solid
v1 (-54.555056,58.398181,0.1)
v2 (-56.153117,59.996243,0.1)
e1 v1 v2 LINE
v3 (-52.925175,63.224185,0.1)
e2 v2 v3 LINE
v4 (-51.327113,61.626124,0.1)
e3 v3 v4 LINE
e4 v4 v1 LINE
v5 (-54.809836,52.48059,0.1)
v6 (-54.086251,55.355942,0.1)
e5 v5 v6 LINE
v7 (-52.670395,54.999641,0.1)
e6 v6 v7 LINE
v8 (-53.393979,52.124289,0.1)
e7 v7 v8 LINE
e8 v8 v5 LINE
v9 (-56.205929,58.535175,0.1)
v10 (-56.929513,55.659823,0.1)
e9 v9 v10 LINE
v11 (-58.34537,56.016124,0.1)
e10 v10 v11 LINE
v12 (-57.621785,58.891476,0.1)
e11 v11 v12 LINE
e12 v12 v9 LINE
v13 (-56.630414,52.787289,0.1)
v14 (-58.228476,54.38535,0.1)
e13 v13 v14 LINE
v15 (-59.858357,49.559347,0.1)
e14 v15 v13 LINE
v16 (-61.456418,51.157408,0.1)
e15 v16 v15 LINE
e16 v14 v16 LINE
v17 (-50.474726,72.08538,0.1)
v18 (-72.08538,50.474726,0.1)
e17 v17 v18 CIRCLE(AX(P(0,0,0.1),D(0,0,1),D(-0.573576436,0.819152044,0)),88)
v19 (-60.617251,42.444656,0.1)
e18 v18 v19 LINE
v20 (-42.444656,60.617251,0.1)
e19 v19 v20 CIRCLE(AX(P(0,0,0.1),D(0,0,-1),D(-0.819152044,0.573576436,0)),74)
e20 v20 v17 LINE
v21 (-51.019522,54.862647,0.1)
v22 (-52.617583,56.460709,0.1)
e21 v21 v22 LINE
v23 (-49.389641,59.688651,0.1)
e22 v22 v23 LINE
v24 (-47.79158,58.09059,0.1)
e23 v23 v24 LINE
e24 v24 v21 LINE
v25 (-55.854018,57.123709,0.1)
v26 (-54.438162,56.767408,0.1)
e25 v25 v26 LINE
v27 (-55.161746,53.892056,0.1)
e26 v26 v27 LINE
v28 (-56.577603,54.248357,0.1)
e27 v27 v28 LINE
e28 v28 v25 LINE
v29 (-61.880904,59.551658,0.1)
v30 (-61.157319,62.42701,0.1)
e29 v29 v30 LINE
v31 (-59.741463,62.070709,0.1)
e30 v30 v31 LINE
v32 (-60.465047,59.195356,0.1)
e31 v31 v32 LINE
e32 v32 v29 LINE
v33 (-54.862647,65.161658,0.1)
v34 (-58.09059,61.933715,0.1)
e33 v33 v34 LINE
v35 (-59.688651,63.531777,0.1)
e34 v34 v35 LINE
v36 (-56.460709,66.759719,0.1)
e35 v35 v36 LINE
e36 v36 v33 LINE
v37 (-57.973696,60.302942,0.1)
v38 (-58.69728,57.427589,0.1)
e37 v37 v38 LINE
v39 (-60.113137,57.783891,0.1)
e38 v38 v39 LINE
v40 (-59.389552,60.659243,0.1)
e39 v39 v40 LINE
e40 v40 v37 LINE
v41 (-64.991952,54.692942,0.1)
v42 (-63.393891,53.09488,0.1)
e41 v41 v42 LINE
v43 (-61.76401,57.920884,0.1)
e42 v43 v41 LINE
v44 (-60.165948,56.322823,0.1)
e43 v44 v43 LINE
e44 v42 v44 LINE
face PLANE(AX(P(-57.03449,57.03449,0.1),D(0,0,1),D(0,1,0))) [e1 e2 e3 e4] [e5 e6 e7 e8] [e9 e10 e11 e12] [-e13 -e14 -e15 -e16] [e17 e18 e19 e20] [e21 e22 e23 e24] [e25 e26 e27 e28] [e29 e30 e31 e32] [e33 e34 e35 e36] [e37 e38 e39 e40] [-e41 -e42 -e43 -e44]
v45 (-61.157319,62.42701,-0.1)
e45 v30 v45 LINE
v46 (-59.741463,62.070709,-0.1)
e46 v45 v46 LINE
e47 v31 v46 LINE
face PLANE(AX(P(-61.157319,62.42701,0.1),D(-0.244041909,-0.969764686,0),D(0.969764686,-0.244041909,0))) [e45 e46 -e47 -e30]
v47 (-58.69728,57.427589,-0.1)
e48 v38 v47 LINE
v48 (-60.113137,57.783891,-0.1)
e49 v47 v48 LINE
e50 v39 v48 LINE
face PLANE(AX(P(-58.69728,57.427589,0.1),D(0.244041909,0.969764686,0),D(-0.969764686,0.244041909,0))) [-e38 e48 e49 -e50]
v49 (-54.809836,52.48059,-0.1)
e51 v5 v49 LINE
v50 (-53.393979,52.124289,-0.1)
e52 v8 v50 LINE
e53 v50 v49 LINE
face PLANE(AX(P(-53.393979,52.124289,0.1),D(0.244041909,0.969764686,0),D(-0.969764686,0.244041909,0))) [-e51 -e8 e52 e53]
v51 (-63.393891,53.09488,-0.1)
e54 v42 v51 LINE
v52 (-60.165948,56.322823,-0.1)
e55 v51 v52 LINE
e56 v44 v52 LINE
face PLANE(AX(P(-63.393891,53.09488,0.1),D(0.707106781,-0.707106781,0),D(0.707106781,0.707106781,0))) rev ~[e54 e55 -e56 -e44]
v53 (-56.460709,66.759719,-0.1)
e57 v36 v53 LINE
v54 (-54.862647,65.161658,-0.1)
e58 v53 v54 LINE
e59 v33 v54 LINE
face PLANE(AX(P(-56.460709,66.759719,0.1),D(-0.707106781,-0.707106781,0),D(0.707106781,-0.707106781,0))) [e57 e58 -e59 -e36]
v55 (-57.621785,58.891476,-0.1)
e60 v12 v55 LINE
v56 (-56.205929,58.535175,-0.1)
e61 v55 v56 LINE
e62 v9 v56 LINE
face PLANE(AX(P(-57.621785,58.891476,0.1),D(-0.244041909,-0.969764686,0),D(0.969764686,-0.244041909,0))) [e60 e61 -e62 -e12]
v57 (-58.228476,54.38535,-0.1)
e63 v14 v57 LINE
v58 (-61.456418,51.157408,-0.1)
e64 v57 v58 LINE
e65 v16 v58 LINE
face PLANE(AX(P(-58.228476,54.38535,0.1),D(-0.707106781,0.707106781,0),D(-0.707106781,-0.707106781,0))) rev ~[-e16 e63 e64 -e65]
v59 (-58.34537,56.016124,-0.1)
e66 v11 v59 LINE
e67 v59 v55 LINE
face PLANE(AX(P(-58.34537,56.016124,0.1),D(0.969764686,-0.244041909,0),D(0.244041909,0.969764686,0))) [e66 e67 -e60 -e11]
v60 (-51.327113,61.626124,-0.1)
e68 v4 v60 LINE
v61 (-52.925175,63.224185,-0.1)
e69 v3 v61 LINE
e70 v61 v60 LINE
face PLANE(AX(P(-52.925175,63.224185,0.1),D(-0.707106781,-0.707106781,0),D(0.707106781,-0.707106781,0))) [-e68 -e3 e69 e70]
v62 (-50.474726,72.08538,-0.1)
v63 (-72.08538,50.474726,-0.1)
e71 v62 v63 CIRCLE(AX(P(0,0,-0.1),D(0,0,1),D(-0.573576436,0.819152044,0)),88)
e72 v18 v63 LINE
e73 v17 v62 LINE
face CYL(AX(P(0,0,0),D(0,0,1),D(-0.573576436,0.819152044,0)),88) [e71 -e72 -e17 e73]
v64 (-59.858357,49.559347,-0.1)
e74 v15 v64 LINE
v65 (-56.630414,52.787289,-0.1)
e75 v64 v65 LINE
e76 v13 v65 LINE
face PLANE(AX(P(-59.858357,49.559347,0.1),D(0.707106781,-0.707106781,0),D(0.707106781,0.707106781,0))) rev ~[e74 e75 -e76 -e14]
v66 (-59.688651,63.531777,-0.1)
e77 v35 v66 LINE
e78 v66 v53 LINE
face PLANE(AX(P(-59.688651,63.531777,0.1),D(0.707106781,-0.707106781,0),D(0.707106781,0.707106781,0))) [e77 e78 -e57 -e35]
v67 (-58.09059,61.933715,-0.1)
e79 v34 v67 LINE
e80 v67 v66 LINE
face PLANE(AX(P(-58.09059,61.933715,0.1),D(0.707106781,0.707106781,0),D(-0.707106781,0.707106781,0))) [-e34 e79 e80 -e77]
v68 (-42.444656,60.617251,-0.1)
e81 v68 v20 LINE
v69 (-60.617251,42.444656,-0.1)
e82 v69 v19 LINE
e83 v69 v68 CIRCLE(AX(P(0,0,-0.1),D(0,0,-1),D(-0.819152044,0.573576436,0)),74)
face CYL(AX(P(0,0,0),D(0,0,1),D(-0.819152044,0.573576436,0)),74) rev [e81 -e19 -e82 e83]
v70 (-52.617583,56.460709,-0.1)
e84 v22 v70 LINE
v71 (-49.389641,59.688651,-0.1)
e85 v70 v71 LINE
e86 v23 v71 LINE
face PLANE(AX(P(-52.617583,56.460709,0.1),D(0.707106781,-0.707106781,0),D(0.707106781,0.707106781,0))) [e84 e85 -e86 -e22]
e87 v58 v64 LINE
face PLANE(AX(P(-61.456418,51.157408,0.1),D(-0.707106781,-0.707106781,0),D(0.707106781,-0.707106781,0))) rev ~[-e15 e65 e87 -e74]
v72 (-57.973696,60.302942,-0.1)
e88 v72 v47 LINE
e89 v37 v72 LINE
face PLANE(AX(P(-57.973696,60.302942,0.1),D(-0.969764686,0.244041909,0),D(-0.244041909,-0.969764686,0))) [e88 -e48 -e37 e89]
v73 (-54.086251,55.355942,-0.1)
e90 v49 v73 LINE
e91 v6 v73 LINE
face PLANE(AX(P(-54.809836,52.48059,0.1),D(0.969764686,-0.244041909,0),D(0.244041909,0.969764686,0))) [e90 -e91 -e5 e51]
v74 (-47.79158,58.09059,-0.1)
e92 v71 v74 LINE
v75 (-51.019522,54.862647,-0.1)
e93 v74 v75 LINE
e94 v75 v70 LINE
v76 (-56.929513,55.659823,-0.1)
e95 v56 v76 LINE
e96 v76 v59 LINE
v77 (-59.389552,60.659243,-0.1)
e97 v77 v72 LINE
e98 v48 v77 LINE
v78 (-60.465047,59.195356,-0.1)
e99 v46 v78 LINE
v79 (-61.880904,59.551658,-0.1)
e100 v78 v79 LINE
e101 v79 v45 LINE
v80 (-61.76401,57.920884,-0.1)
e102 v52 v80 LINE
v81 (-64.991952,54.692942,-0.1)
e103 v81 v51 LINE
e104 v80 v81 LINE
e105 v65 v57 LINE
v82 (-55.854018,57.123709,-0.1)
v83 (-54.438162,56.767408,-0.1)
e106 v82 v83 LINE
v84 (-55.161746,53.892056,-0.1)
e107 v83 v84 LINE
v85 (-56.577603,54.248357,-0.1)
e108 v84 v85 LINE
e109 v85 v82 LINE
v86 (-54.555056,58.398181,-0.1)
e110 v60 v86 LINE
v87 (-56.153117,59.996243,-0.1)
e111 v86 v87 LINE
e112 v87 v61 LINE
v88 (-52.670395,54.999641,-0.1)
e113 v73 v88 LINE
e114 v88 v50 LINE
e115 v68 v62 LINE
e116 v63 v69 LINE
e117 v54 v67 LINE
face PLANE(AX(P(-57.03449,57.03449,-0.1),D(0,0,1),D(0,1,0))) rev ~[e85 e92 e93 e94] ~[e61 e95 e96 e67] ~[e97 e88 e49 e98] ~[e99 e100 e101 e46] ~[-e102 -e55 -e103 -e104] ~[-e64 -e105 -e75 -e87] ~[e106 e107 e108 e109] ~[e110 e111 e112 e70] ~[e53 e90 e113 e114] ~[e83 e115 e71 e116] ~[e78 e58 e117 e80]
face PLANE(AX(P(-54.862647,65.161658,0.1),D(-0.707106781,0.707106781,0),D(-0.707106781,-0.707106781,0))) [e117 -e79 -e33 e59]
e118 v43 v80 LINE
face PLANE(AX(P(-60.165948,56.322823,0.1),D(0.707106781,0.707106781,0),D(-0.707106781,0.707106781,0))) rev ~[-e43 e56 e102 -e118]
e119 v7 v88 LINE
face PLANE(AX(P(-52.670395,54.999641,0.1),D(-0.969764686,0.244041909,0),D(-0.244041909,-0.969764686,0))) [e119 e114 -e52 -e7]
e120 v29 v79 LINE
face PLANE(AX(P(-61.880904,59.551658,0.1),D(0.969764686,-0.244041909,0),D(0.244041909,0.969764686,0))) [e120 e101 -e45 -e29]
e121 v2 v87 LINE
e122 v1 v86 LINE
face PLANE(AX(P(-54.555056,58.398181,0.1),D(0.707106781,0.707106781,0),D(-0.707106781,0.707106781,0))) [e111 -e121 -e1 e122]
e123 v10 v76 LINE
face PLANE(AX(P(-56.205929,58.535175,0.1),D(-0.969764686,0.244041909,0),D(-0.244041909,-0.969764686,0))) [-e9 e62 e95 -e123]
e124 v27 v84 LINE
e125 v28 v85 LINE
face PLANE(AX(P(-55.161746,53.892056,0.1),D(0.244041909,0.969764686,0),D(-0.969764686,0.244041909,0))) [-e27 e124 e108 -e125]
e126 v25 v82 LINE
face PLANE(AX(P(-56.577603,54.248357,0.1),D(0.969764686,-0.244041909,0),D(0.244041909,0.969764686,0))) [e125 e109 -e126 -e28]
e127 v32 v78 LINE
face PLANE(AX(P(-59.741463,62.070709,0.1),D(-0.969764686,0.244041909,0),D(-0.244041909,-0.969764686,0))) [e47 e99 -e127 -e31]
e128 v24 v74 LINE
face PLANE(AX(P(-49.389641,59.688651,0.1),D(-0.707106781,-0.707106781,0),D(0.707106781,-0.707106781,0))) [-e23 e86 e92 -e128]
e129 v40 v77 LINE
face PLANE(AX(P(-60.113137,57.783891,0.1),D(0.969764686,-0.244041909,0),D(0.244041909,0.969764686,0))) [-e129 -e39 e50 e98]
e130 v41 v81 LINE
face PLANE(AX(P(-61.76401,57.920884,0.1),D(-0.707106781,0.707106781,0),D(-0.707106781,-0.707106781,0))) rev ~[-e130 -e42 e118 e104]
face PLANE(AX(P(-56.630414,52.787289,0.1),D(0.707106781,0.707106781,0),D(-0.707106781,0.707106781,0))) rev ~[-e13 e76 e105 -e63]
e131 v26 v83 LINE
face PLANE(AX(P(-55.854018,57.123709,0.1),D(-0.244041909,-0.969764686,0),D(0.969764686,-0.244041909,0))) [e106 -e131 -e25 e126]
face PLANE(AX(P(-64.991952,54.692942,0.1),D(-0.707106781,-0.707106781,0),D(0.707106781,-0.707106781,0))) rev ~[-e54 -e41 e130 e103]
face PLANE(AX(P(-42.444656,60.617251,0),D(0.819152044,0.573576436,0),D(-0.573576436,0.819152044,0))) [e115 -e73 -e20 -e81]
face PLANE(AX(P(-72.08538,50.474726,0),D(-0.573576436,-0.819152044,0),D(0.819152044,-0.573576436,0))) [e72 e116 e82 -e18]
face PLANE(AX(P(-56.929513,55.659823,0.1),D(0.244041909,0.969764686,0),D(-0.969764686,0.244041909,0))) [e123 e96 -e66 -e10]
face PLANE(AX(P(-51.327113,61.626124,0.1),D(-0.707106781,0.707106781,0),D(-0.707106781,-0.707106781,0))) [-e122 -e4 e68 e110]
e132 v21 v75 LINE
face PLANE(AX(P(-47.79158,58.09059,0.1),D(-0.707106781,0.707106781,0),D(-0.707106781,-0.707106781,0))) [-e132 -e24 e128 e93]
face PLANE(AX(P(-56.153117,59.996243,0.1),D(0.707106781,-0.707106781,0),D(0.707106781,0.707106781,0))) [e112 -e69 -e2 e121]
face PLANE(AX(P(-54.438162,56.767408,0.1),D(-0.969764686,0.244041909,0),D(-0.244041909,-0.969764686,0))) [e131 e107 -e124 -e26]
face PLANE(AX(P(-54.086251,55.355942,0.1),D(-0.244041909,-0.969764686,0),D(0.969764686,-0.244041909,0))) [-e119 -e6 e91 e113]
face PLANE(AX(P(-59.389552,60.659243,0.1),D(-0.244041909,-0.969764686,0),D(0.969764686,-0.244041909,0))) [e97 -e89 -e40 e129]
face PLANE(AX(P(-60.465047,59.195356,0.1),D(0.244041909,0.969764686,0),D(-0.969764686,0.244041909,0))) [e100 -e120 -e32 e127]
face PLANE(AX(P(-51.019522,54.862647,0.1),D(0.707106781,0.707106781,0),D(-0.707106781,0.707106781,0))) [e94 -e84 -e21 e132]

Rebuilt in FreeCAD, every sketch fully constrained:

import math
import FreeCAD as App
import Part
import Sketcher
from FreeCAD import Vector
Q = App.Units.Quantity

doc = App.newDocument("Part")
body = doc.addObject("PartDesign::Body", "Body")

# Sketch on XY plane
sketch1 = doc.addObject("Sketcher::SketchObject", "Sketch")
body.addObject(sketch1)
sketch1.AttachmentSupport = (doc.XY_Plane, [""])
sketch1.MapMode = "FlatFace"
sketch1.addGeometry([
    Part.LineSegment(Vector(-72.08538, 50.474726, 0), Vector(-60.617251, 42.444656, 0)),
    Part.ArcOfCircle(Part.Circle(Vector(0, 0, 0), Vector(0, 0, 1), 74), math.radians(125), math.radians(145)),
    Part.LineSegment(Vector(-42.444656, 60.617251, 0), Vector(-50.474726, 72.08538, 0)),
    Part.ArcOfCircle(Part.Circle(Vector(0, 0, 0), Vector(0, 0, 1), 88), math.radians(125), math.radians(145)),
], False)
sketch1.addConstraint([
    Sketcher.Constraint("Coincident", 0, 2, 1, 2),
    Sketcher.Constraint("Coincident", 1, 1, 2, 1),
    Sketcher.Constraint("Coincident", 2, 2, 3, 1),
    Sketcher.Constraint("Coincident", 3, 2, 0, 1),
    Sketcher.Constraint("Coincident", 1, 3, -1, 1),
    Sketcher.Constraint("Coincident", 3, 3, -1, 1),
    Sketcher.Constraint("Radius", 1, Q("74 mm")),
    Sketcher.Constraint("Radius", 3, Q("88 mm")),
    Sketcher.Constraint("Angle", 0, Q("-35 deg")),
    Sketcher.Constraint("Angle", 2, Q("125 deg")),
    Sketcher.Constraint("DistanceX", 0, 2, -1, 1, Q("60.617251 mm")),
    Sketcher.Constraint("DistanceY", -1, 1, 1, 1, Q("60.617251 mm")),
])
pad1 = doc.addObject("PartDesign::Pad", "Pad")
body.addObject(pad1)
pad1.Profile = sketch1
pad1.Length = 0.2
pad1.Midplane = True

# Sketch on XY plane
sketch2 = doc.addObject("Sketcher::SketchObject", "Sketch001")
body.addObject(sketch2)
sketch2.AttachmentSupport = (doc.XY_Plane, [""])
sketch2.MapMode = "FlatFace"
sketch2.AttachmentOffset = App.Placement(Vector(0, 0, 0.1), App.Rotation())
sketch2.addGeometry([
    Part.LineSegment(Vector(-54.086251, 55.355942, 0), Vector(-54.809836, 52.48059, 0)),  # 0
    Part.LineSegment(Vector(-54.809836, 52.48059, 0), Vector(-53.393979, 52.124289, 0)),  # 1
    Part.LineSegment(Vector(-53.393979, 52.124289, 0), Vector(-52.670395, 54.999641, 0)),  # 2
    Part.LineSegment(Vector(-52.670395, 54.999641, 0), Vector(-54.086251, 55.355942, 0)),  # 3
    Part.LineSegment(Vector(-55.854018, 57.123709, 0), Vector(-56.577603, 54.248357, 0)),  # 4
    Part.LineSegment(Vector(-56.577603, 54.248357, 0), Vector(-55.161746, 53.892056, 0)),  # 5
    Part.LineSegment(Vector(-55.161746, 53.892056, 0), Vector(-54.438162, 56.767408, 0)),  # 6
    Part.LineSegment(Vector(-54.438162, 56.767408, 0), Vector(-55.854018, 57.123709, 0)),  # 7
    Part.LineSegment(Vector(-57.621785, 58.891476, 0), Vector(-58.34537, 56.016124, 0)),  # 8
    Part.LineSegment(Vector(-58.34537, 56.016124, 0), Vector(-56.929513, 55.659823, 0)),  # 9
    Part.LineSegment(Vector(-56.929513, 55.659823, 0), Vector(-56.205929, 58.535175, 0)),  # 10
    Part.LineSegment(Vector(-56.205929, 58.535175, 0), Vector(-57.621785, 58.891476, 0)),  # 11
    Part.LineSegment(Vector(-59.389552, 60.659243, 0), Vector(-60.113137, 57.783891, 0)),  # 12
    Part.LineSegment(Vector(-60.113137, 57.783891, 0), Vector(-58.69728, 57.427589, 0)),  # 13
    Part.LineSegment(Vector(-58.69728, 57.427589, 0), Vector(-57.973696, 60.302942, 0)),  # 14
    Part.LineSegment(Vector(-57.973696, 60.302942, 0), Vector(-59.389552, 60.659243, 0)),  # 15
    Part.LineSegment(Vector(-61.157319, 62.42701, 0), Vector(-61.880904, 59.551658, 0)),  # 16
    Part.LineSegment(Vector(-61.880904, 59.551658, 0), Vector(-60.465047, 59.195356, 0)),  # 17
    Part.LineSegment(Vector(-60.465047, 59.195356, 0), Vector(-59.741463, 62.070709, 0)),  # 18
    Part.LineSegment(Vector(-59.741463, 62.070709, 0), Vector(-61.157319, 62.42701, 0)),  # 19
    Part.LineSegment(Vector(-52.617583, 56.460709, 0), Vector(-51.019522, 54.862647, 0)),  # 20
    Part.LineSegment(Vector(-51.019522, 54.862647, 0), Vector(-47.79158, 58.09059, 0)),  # 21
    Part.LineSegment(Vector(-47.79158, 58.09059, 0), Vector(-49.389641, 59.688651, 0)),  # 22
    Part.LineSegment(Vector(-49.389641, 59.688651, 0), Vector(-52.617583, 56.460709, 0)),  # 23
    Part.LineSegment(Vector(-59.858357, 49.559347, 0), Vector(-56.630414, 52.787289, 0)),  # 24
    Part.LineSegment(Vector(-56.630414, 52.787289, 0), Vector(-58.228476, 54.38535, 0)),  # 25
    Part.LineSegment(Vector(-58.228476, 54.38535, 0), Vector(-61.456418, 51.157408, 0)),  # 26
    Part.LineSegment(Vector(-61.456418, 51.157408, 0), Vector(-59.858357, 49.559347, 0)),  # 27
    Part.LineSegment(Vector(-56.153117, 59.996243, 0), Vector(-54.555056, 58.398181, 0)),  # 28
    Part.LineSegment(Vector(-54.555056, 58.398181, 0), Vector(-51.327113, 61.626124, 0)),  # 29
    Part.LineSegment(Vector(-51.327113, 61.626124, 0), Vector(-52.925175, 63.224185, 0)),  # 30
    Part.LineSegment(Vector(-52.925175, 63.224185, 0), Vector(-56.153117, 59.996243, 0)),  # 31
    Part.LineSegment(Vector(-59.688651, 63.531777, 0), Vector(-58.09059, 61.933715, 0)),  # 32
    Part.LineSegment(Vector(-58.09059, 61.933715, 0), Vector(-54.862647, 65.161658, 0)),  # 33
    Part.LineSegment(Vector(-54.862647, 65.161658, 0), Vector(-56.460709, 66.759719, 0)),  # 34
    Part.LineSegment(Vector(-56.460709, 66.759719, 0), Vector(-59.688651, 63.531777, 0)),  # 35
    Part.LineSegment(Vector(-63.393891, 53.09488, 0), Vector(-60.165948, 56.322823, 0)),  # 36
    Part.LineSegment(Vector(-60.165948, 56.322823, 0), Vector(-61.76401, 57.920884, 0)),  # 37
    Part.LineSegment(Vector(-61.76401, 57.920884, 0), Vector(-64.991952, 54.692942, 0)),  # 38
    Part.LineSegment(Vector(-64.991952, 54.692942, 0), Vector(-63.393891, 53.09488, 0)),  # 39
], False)
sketch2.addConstraint([
    Sketcher.Constraint("Coincident", 0, 2, 1, 1),
    Sketcher.Constraint("Coincident", 1, 2, 2, 1),
    Sketcher.Constraint("Coincident", 2, 2, 3, 1),
    Sketcher.Constraint("Coincident", 3, 2, 0, 1),
    Sketcher.Constraint("Coincident", 4, 2, 5, 1),
    Sketcher.Constraint("Coincident", 5, 2, 6, 1),
    Sketcher.Constraint("Coincident", 6, 2, 7, 1),
    Sketcher.Constraint("Coincident", 7, 2, 4, 1),
    Sketcher.Constraint("Coincident", 8, 2, 9, 1),
    Sketcher.Constraint("Coincident", 9, 2, 10, 1),
    Sketcher.Constraint("Coincident", 10, 2, 11, 1),
    Sketcher.Constraint("Coincident", 11, 2, 8, 1),
    Sketcher.Constraint("Coincident", 12, 2, 13, 1),
    Sketcher.Constraint("Coincident", 13, 2, 14, 1),
    Sketcher.Constraint("Coincident", 14, 2, 15, 1),
    Sketcher.Constraint("Coincident", 15, 2, 12, 1),
    Sketcher.Constraint("Coincident", 16, 2, 17, 1),
    Sketcher.Constraint("Coincident", 17, 2, 18, 1),
    Sketcher.Constraint("Coincident", 18, 2, 19, 1),
    Sketcher.Constraint("Coincident", 19, 2, 16, 1),
    Sketcher.Constraint("Coincident", 20, 2, 21, 1),
    Sketcher.Constraint("Coincident", 21, 2, 22, 1),
    Sketcher.Constraint("Coincident", 22, 2, 23, 1),
    Sketcher.Constraint("Coincident", 23, 2, 20, 1),
    Sketcher.Constraint("Coincident", 24, 2, 25, 1),
    Sketcher.Constraint("Coincident", 25, 2, 26, 1),
    Sketcher.Constraint("Coincident", 26, 2, 27, 1),
    Sketcher.Constraint("Coincident", 27, 2, 24, 1),
    Sketcher.Constraint("Coincident", 28, 2, 29, 1),
    Sketcher.Constraint("Coincident", 29, 2, 30, 1),
    Sketcher.Constraint("Coincident", 30, 2, 31, 1),
    Sketcher.Constraint("Coincident", 31, 2, 28, 1),
    Sketcher.Constraint("Coincident", 32, 2, 33, 1),
    Sketcher.Constraint("Coincident", 33, 2, 34, 1),
    Sketcher.Constraint("Coincident", 34, 2, 35, 1),
    Sketcher.Constraint("Coincident", 35, 2, 32, 1),
    Sketcher.Constraint("Coincident", 36, 2, 37, 1),
    Sketcher.Constraint("Coincident", 37, 2, 38, 1),
    Sketcher.Constraint("Coincident", 38, 2, 39, 1),
    Sketcher.Constraint("Coincident", 39, 2, 36, 1),
    Sketcher.Constraint("Perpendicular", 0, 1),
    Sketcher.Constraint("Perpendicular", 1, 2),
    Sketcher.Constraint("Perpendicular", 2, 3),
    Sketcher.Constraint("Perpendicular", 3, 4),
    Sketcher.Constraint("Perpendicular", 4, 5),
    Sketcher.Constraint("Perpendicular", 5, 6),
    Sketcher.Constraint("Perpendicular", 6, 7),
    Sketcher.Constraint("Perpendicular", 7, 8),
    Sketcher.Constraint("Perpendicular", 8, 9),
    Sketcher.Constraint("Perpendicular", 9, 10),
    Sketcher.Constraint("Perpendicular", 10, 11),
    Sketcher.Constraint("Perpendicular", 11, 12),
    Sketcher.Constraint("Perpendicular", 12, 13),
    Sketcher.Constraint("Perpendicular", 13, 14),
    Sketcher.Constraint("Perpendicular", 14, 15),
    Sketcher.Constraint("Perpendicular", 15, 16),
    Sketcher.Constraint("Perpendicular", 16, 17),
    Sketcher.Constraint("Perpendicular", 17, 18),
    Sketcher.Constraint("Perpendicular", 18, 19),
    Sketcher.Constraint("Perpendicular", 20, 21),
    Sketcher.Constraint("Perpendicular", 21, 22),
    Sketcher.Constraint("Perpendicular", 22, 23),
    Sketcher.Constraint("Parallel", 23, 24),
    Sketcher.Constraint("Perpendicular", 24, 25),
    Sketcher.Constraint("Perpendicular", 25, 26),
    Sketcher.Constraint("Perpendicular", 26, 27),
    Sketcher.Constraint("Parallel", 27, 28),
    Sketcher.Constraint("Perpendicular", 28, 29),
    Sketcher.Constraint("Perpendicular", 29, 30),
    Sketcher.Constraint("Perpendicular", 30, 31),
    Sketcher.Constraint("Perpendicular", 31, 32),
    Sketcher.Constraint("Perpendicular", 32, 33),
    Sketcher.Constraint("Perpendicular", 33, 34),
    Sketcher.Constraint("Perpendicular", 34, 35),
    Sketcher.Constraint("Parallel", 35, 36),
    Sketcher.Constraint("Perpendicular", 36, 37),
    Sketcher.Constraint("Perpendicular", 37, 38),
    Sketcher.Constraint("Perpendicular", 38, 39),
    Sketcher.Constraint("Equal", 2, 4),
    Sketcher.Constraint("Equal", 3, 5),
    Sketcher.Constraint("Equal", 6, 8),
    Sketcher.Constraint("Equal", 7, 9),
    Sketcher.Constraint("Equal", 10, 12),
    Sketcher.Constraint("Equal", 11, 13),
    Sketcher.Constraint("Equal", 14, 16),
    Sketcher.Constraint("Equal", 15, 17),
    Sketcher.Constraint("Equal", 23, 24),
    Sketcher.Constraint("Equal", 22, 25),
    Sketcher.Constraint("Equal", 27, 28),
    Sketcher.Constraint("Equal", 26, 29),
    Sketcher.Constraint("Equal", 30, 32),
    Sketcher.Constraint("Equal", 31, 33),
    Sketcher.Constraint("Equal", 35, 36),
    Sketcher.Constraint("Equal", 34, 37),
    Sketcher.Constraint("Angle", 20, Q("-45 deg")),
    Sketcher.Constraint("Distance", 1, Q("1.46 mm")),
    Sketcher.Constraint("Distance", 20, Q("2.26 mm")),
    Sketcher.Constraint("Distance", 0, Q("2.965 mm")),
    Sketcher.Constraint("Distance", 21, Q("4.565 mm")),
    Sketcher.Constraint("DistanceY", 23, 2, 7, 2, Q("0.663 mm")),
    Sketcher.Constraint("DistanceY", 1, 2, 24, 2, Q("0.663 mm")),
    Sketcher.Constraint("DistanceY", 1, 2, 0, 2, Q("0.356301 mm")),
    Sketcher.Constraint("DistanceX", 9, 2, 24, 2, Q("0.299099 mm")),
    Sketcher.Constraint("DistanceY", 31, 2, 14, 2, Q("0.306699 mm")),
    Sketcher.Constraint("DistanceX", 31, 2, 7, 2, Q("0.299099 mm")),
    Sketcher.Constraint("DistanceX", 35, 2, 15, 2, Q("0.299099 mm")),
    Sketcher.Constraint("DistanceY", 8, 2, 36, 2, Q("0.306699 mm")),
    Sketcher.Constraint("DistanceX", 17, 2, 36, 2, Q("0.299099 mm")),
    Sketcher.Constraint("DistanceY", -1, 1, 0, 2, Q("52.48059 mm")),
    Sketcher.Constraint("DistanceX", 1, 2, -1, 1, Q("53.393979 mm")),
    Sketcher.Constraint("DistanceX", 6, 2, -1, 1, Q("54.438162 mm")),
    Sketcher.Constraint("DistanceY", -1, 1, 7, 2, Q("57.123709 mm")),
    Sketcher.Constraint("DistanceX", 8, 2, -1, 1, Q("58.34537 mm")),
    Sketcher.Constraint("DistanceY", -1, 1, 12, 2, Q("57.783891 mm")),
    Sketcher.Constraint("DistanceX", 13, 2, -1, 1, Q("58.69728 mm")),
    Sketcher.Constraint("DistanceY", -1, 1, 18, 2, Q("62.070709 mm")),
    Sketcher.Constraint("DistanceX", 19, 2, -1, 1, Q("61.157319 mm")),
    Sketcher.Constraint("DistanceX", 21, 2, -1, 1, Q("47.79158 mm")),
    Sketcher.Constraint("DistanceY", -1, 1, 34, 2, Q("66.759719 mm")),
    Sketcher.Constraint("DistanceY", -1, 1, 38, 2, Q("54.692942 mm")),
])
pocket1 = doc.addObject("PartDesign::Pocket", "Pocket")
body.addObject(pocket1)
pocket1.Profile = sketch2
pocket1.Type = "ThroughAll"

doc.recompute()
